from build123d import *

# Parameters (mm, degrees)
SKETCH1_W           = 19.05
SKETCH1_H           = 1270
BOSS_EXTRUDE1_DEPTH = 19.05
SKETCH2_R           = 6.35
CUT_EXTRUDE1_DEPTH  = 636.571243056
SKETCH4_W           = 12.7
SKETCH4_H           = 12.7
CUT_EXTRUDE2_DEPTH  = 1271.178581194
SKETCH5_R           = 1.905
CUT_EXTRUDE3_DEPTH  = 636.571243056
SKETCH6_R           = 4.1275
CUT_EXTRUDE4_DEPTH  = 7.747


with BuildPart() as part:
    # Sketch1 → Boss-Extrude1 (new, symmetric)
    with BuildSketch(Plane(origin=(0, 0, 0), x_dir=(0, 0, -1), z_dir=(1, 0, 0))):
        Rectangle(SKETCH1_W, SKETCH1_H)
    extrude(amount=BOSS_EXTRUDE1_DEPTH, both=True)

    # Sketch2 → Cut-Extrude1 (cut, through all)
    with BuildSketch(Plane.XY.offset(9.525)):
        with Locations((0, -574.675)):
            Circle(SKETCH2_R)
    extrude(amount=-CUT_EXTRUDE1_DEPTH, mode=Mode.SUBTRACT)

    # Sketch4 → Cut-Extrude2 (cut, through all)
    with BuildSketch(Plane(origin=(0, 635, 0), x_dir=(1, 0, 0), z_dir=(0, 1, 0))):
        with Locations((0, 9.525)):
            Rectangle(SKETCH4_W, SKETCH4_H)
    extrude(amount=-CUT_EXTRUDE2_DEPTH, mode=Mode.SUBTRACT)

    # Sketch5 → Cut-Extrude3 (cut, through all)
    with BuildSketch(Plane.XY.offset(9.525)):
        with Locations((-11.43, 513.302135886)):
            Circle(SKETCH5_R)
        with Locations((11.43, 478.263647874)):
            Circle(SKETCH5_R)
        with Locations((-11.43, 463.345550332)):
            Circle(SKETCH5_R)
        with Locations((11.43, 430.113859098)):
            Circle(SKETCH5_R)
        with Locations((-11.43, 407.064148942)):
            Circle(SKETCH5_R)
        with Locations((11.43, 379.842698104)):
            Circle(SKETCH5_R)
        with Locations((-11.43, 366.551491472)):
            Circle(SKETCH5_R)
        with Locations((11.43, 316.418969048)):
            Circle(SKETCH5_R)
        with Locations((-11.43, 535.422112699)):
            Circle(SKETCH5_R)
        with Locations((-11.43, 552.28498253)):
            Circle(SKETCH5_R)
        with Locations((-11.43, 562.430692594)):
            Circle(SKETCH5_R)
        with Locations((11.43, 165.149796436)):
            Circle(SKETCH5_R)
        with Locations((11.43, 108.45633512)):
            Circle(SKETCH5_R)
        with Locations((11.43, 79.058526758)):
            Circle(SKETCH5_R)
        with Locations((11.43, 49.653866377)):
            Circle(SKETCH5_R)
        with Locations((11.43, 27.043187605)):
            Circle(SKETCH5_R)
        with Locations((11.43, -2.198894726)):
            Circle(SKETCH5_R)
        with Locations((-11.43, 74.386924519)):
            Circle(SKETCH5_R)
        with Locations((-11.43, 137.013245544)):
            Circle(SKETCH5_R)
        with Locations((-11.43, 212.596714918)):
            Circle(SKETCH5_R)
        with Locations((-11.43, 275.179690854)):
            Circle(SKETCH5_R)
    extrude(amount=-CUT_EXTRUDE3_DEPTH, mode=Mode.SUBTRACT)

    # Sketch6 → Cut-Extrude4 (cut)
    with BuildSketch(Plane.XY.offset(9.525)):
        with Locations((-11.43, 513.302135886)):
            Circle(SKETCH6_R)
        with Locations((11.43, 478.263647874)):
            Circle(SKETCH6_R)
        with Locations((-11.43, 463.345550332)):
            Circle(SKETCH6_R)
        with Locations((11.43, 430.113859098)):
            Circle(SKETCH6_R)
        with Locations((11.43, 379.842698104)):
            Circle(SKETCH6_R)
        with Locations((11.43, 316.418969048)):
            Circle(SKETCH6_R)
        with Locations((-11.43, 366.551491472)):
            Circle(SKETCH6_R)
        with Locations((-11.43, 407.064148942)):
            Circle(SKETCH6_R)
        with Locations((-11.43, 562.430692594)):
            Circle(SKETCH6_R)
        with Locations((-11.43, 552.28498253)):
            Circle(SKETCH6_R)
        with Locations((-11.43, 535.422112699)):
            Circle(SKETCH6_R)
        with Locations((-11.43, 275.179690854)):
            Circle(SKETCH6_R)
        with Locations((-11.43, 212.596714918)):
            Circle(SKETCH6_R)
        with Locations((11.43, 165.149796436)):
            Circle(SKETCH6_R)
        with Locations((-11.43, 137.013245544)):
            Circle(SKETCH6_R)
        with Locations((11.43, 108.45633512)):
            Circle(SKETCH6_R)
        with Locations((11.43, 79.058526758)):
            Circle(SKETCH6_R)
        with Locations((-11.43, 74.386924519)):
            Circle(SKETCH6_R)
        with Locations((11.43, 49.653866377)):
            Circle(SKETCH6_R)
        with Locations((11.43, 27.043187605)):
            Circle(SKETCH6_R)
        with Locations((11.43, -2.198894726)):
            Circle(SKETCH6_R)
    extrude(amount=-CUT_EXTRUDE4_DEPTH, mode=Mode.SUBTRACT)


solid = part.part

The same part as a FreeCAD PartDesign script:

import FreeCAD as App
import Part
import Sketcher
Q = App.Units.Quantity

doc = App.newDocument("Part")
body = doc.addObject("PartDesign::Body", "Body")

# Sketch on YZ plane
sketch1 = body.newObject("Sketcher::SketchObject", "Sketch")
sketch1.AttachmentSupport = (doc.getObject("YZ_Plane"), [""])
sketch1.MapMode = "FlatFace"
sketch1.addGeometry([
    Part.LineSegment(App.Vector(635, 10, 0), App.Vector(-635, 10, 0)),
    Part.LineSegment(App.Vector(-635, 10, 0), App.Vector(-635, -10, 0)),
    Part.LineSegment(App.Vector(-635, -10, 0), App.Vector(635, -10, 0)),
    Part.LineSegment(App.Vector(635, -10, 0), App.Vector(635, 10, 0)),
], False)
sketch1.addConstraint([
    Sketcher.Constraint("Coincident", 0, 2, 1, 1),
    Sketcher.Constraint("Coincident", 1, 2, 2, 1),
    Sketcher.Constraint("Coincident", 2, 2, 3, 1),
    Sketcher.Constraint("Coincident", 3, 2, 0, 1),
    Sketcher.Constraint("Horizontal", 0),
    Sketcher.Constraint("Vertical", 1),
    Sketcher.Constraint("Horizontal", 2),
    Sketcher.Constraint("Vertical", 3),
    Sketcher.Constraint("Symmetric", 0, 2, 2, 2, -1, 1),
    Sketcher.Constraint("DistanceX", 0, 2, 0, 1, Q("50 in")),
    Sketcher.Constraint("DistanceY", 1, 2, 1, 1, Q("0.75 in")),
])
pad1 = body.newObject("PartDesign::Pad", "Pad")
pad1.Profile = sketch1
pad1.Length = Q("1.5 in")
pad1.Midplane = True

# Sketch on XY plane
sketch2 = body.newObject("Sketcher::SketchObject", "Sketch001")
sketch2.AttachmentSupport = (doc.getObject("XY_Plane"), [""])
sketch2.MapMode = "FlatFace"
sketch2.AttachmentOffset = App.Placement(App.Vector(0, 0, 0.375 * 25.4), App.Rotation())
sketch2.addGeometry(Part.Circle(App.Vector(0, -575, 0), App.Vector(0, 0, 1), 6), False)
sketch2.addConstraint([
    Sketcher.Constraint("PointOnObject", 0, 3, -2),
    Sketcher.Constraint("Diameter", 0, Q("0.5 in")),
    Sketcher.Constraint("DistanceY", 0, 3, -1, 1, Q("22.625 in")),
])
pocket1 = body.newObject("PartDesign::Pocket", "Pocket")
pocket1.Profile = sketch2
pocket1.Type = "ThroughAll"

# Sketch on XZ plane
sketch3 = body.newObject("Sketcher::SketchObject", "Sketch002")
sketch3.AttachmentSupport = (doc.getObject("XZ_Plane"), [""])
sketch3.MapMode = "FlatFace"
sketch3.AttachmentOffset = App.Placement(App.Vector(0, 0, -25 * 25.4), App.Rotation())
sketch3.addGeometry([
    Part.LineSegment(App.Vector(-6, -16, 0), App.Vector(-6, -3, 0)),
    Part.LineSegment(App.Vector(-6, -3, 0), App.Vector(6, -3, 0)),
    Part.LineSegment(App.Vector(6, -3, 0), App.Vector(6, -16, 0)),
    Part.LineSegment(App.Vector(6, -16, 0), App.Vector(-6, -16, 0)),
], False)
sketch3.addConstraint([
    Sketcher.Constraint("Coincident", 0, 2, 1, 1),
    Sketcher.Constraint("Coincident", 1, 2, 2, 1),
    Sketcher.Constraint("Coincident", 2, 2, 3, 1),
    Sketcher.Constraint("Coincident", 3, 2, 0, 1),
    Sketcher.Constraint("Vertical", 0),
    Sketcher.Constraint("Horizontal", 1),
    Sketcher.Constraint("Vertical", 2),
    Sketcher.Constraint("Horizontal", 3),
    Sketcher.Constraint("Equal", 3, 0),
    Sketcher.Constraint("DistanceX", 1, 1, 1, 2, Q("0.5 in")),
    Sketcher.Constraint("DistanceX", 0, 2, -1, 1, Q("0.25 in")),
    Sketcher.Constraint("DistanceY", 0, 2, -1, 1, Q("0.125 in")),
])
pocket2 = body.newObject("PartDesign::Pocket", "Pocket001")
pocket2.Profile = sketch3
pocket2.Type = "ThroughAll"
pocket2.Reversed = True

# Sketch on XY plane
sketch4 = body.newObject("Sketcher::SketchObject", "Sketch003")
sketch4.AttachmentSupport = (doc.getObject("XY_Plane"), [""])
sketch4.MapMode = "FlatFace"
sketch4.AttachmentOffset = App.Placement(App.Vector(0, 0, 0.375 * 25.4), App.Rotation())
sketch4.addGeometry([
    Part.Circle(App.Vector(-11.4, 513.3, 0), App.Vector(0, 0, 1), 1.9),  # 0
    Part.Circle(App.Vector(11.4, 478.3, 0), App.Vector(0, 0, 1), 1.9),  # 1
    Part.Circle(App.Vector(-11.4, 463.3, 0), App.Vector(0, 0, 1), 1.9),  # 2
    Part.Circle(App.Vector(11.4, 430.1, 0), App.Vector(0, 0, 1), 1.9),  # 3
    Part.Circle(App.Vector(-11.4, 407.1, 0), App.Vector(0, 0, 1), 1.9),  # 4
    Part.Circle(App.Vector(11.4, 379.8, 0), App.Vector(0, 0, 1), 1.9),  # 5
    Part.Circle(App.Vector(-11.4, 366.6, 0), App.Vector(0, 0, 1), 1.9),  # 6
    Part.Circle(App.Vector(11.4, 316.4, 0), App.Vector(0, 0, 1), 1.9),  # 7
    Part.Circle(App.Vector(-11.4, 535.4, 0), App.Vector(0, 0, 1), 1.9),  # 8
    Part.Circle(App.Vector(-11.4, 552.3, 0), App.Vector(0, 0, 1), 1.9),  # 9
    Part.Circle(App.Vector(-11.4, 562.4, 0), App.Vector(0, 0, 1), 1.9),  # 10
    Part.Circle(App.Vector(11.4, 165.1, 0), App.Vector(0, 0, 1), 1.9),  # 11
    Part.Circle(App.Vector(11.4, 108.5, 0), App.Vector(0, 0, 1), 1.9),  # 12
    Part.Circle(App.Vector(11.4, 79.1, 0), App.Vector(0, 0, 1), 1.9),  # 13
    Part.Circle(App.Vector(11.4, 49.7, 0), App.Vector(0, 0, 1), 1.9),  # 14
    Part.Circle(App.Vector(11.4, 27, 0), App.Vector(0, 0, 1), 1.9),  # 15
    Part.Circle(App.Vector(11.4, -2.2, 0), App.Vector(0, 0, 1), 1.9),  # 16
    Part.Circle(App.Vector(-11.4, 74.4, 0), App.Vector(0, 0, 1), 1.9),  # 17
    Part.Circle(App.Vector(-11.4, 137, 0), App.Vector(0, 0, 1), 1.9),  # 18
    Part.Circle(App.Vector(-11.4, 212.6, 0), App.Vector(0, 0, 1), 1.9),  # 19
    Part.Circle(App.Vector(-11.4, 275.2, 0), App.Vector(0, 0, 1), 1.9),  # 20
], False)
sketch4.addConstraint([
    Sketcher.Constraint("Equal", 0, 1),
    Sketcher.Constraint("Equal", 1, 2),
    Sketcher.Constraint("Equal", 2, 3),
    Sketcher.Constraint("Equal", 3, 4),
    Sketcher.Constraint("Equal", 4, 5),
    Sketcher.Constraint("Equal", 5, 6),
    Sketcher.Constraint("Equal", 6, 7),
    Sketcher.Constraint("Equal", 7, 8),
    Sketcher.Constraint("Equal", 8, 9),
    Sketcher.Constraint("Equal", 9, 10),
    Sketcher.Constraint("Equal", 10, 11),
    Sketcher.Constraint("Equal", 11, 12),
    Sketcher.Constraint("Equal", 12, 13),
    Sketcher.Constraint("Equal", 13, 14),
    Sketcher.Constraint("Equal", 14, 15),
    Sketcher.Constraint("Equal", 15, 16),
    Sketcher.Constraint("Equal", 16, 17),
    Sketcher.Constraint("Equal", 17, 18),
    Sketcher.Constraint("Equal", 18, 19),
    Sketcher.Constraint("Equal", 19, 20),
    Sketcher.Constraint("Vertical", 0, 3, 2, 3),
    Sketcher.Constraint("Vertical", 1, 3, 3, 3),
    Sketcher.Constraint("Vertical", 2, 3, 4, 3),
    Sketcher.Constraint("Vertical", 3, 3, 5, 3),
    Sketcher.Constraint("Vertical", 4, 3, 6, 3),
    Sketcher.Constraint("Vertical", 5, 3, 7, 3),
    Sketcher.Constraint("Vertical", 6, 3, 8, 3),
    Sketcher.Constraint("Vertical", 8, 3, 9, 3),
    Sketcher.Constraint("Vertical", 9, 3, 10, 3),
    Sketcher.Constraint("Vertical", 7, 3, 11, 3),
    Sketcher.Constraint("Vertical", 11, 3, 12, 3),
    Sketcher.Constraint("Vertical", 12, 3, 13, 3),
    Sketcher.Constraint("Vertical", 13, 3, 14, 3),
    Sketcher.Constraint("Vertical", 14, 3, 15, 3),
    Sketcher.Constraint("Vertical", 15, 3, 16, 3),
    Sketcher.Constraint("Vertical", 10, 3, 17, 3),
    Sketcher.Constraint("Vertical", 17, 3, 18, 3),
    Sketcher.Constraint("Vertical", 18, 3, 19, 3),
    Sketcher.Constraint("Vertical", 19, 3, 20, 3),
    Sketcher.Constraint("Diameter", 0, Q("0.15 in")),
    Sketcher.Constraint("DistanceX", 0, 3, 1, 3, Q("0.9 in")),
    Sketcher.Constraint("DistanceX", 0, 3, -1, 1, Q("0.45 in")),
    Sketcher.Constraint("DistanceY", -1, 1, 5, 3, Q("379.842698 mm")),
    Sketcher.Constraint("DistanceY", 4, 3, 2, 3, Q("56.281401 mm")),
    Sketcher.Constraint("DistanceY", 4, 3, 1, 3, Q("71.199499 mm")),
    Sketcher.Constraint("DistanceY", 11, 3, 5, 3, Q("214.692902 mm")),
    Sketcher.Constraint("DistanceY", 20, 3, 6, 3, Q("91.371801 mm")),
    Sketcher.Constraint("DistanceY", -1, 1, 2, 3, Q("463.34555 mm")),
    Sketcher.Constraint("DistanceY", -1, 1, 3, 3, Q("430.113859 mm")),
    Sketcher.Constraint("DistanceY", -1, 1, 6, 3, Q("366.551491 mm")),
    Sketcher.Constraint("DistanceY", -1, 1, 7, 3, Q("316.418969 mm")),
    Sketcher.Constraint("DistanceY", 1, 3, 0, 3, Q("35.038488 mm")),
    Sketcher.Constraint("DistanceY", 8, 3, 9, 3, Q("16.86287 mm")),
    Sketcher.Constraint("DistanceY", 9, 3, 10, 3, Q("10.14571 mm")),
    Sketcher.Constraint("DistanceY", 12, 3, 11, 3, Q("56.693461 mm")),
    Sketcher.Constraint("DistanceY", 13, 3, 12, 3, Q("29.397808 mm")),
    Sketcher.Constraint("DistanceY", 14, 3, 13, 3, Q("29.40466 mm")),
    Sketcher.Constraint("DistanceY", 15, 3, 14, 3, Q("22.610679 mm")),
    Sketcher.Constraint("DistanceY", 16, 3, 14, 3, Q("51.852761 mm")),
    Sketcher.Constraint("DistanceY", 14, 3, 17, 3, Q("24.733058 mm")),
    Sketcher.Constraint("DistanceY", 18, 3, 11, 3, Q("28.136551 mm")),
    Sketcher.Constraint("DistanceY", 11, 3, 19, 3, Q("47.446918 mm")),
    Sketcher.Constraint("DistanceY", -1, 1, 8, 3, Q("535.422113 mm")),
])
pocket3 = body.newObject("PartDesign::Pocket", "Pocket002")
pocket3.Profile = sketch4
pocket3.Type = "ThroughAll"

# Sketch on XY plane
sketch5 = body.newObject("Sketcher::SketchObject", "Sketch004")
sketch5.AttachmentSupport = (doc.getObject("XY_Plane"), [""])
sketch5.MapMode = "FlatFace"
sketch5.AttachmentOffset = App.Placement(App.Vector(0, 0, 0.375 * 25.4), App.Rotation())
sketch5.addGeometry([
    Part.Circle(App.Vector(-11.4, 513.3, 0), App.Vector(0, 0, 1), 4.1),  # 0
    Part.Circle(App.Vector(11.4, 478.3, 0), App.Vector(0, 0, 1), 4.1),  # 1
    Part.Circle(App.Vector(-11.4, 463.3, 0), App.Vector(0, 0, 1), 4.1),  # 2
    Part.Circle(App.Vector(11.4, 430.1, 0), App.Vector(0, 0, 1), 4.1),  # 3
    Part.Circle(App.Vector(11.4, 379.8, 0), App.Vector(0, 0, 1), 4.1),  # 4
    Part.Circle(App.Vector(11.4, 316.4, 0), App.Vector(0, 0, 1), 4.1),  # 5
    Part.Circle(App.Vector(-11.4, 366.6, 0), App.Vector(0, 0, 1), 4.1),  # 6
    Part.Circle(App.Vector(-11.4, 407.1, 0), App.Vector(0, 0, 1), 4.1),  # 7
    Part.Circle(App.Vector(-11.4, 562.4, 0), App.Vector(0, 0, 1), 4.1),  # 8
    Part.Circle(App.Vector(-11.4, 552.3, 0), App.Vector(0, 0, 1), 4.1),  # 9
    Part.Circle(App.Vector(-11.4, 535.4, 0), App.Vector(0, 0, 1), 4.1),  # 10
    Part.Circle(App.Vector(-11.4, 275.2, 0), App.Vector(0, 0, 1), 4.1),  # 11
    Part.Circle(App.Vector(-11.4, 212.6, 0), App.Vector(0, 0, 1), 4.1),  # 12
    Part.Circle(App.Vector(11.4, 165.1, 0), App.Vector(0, 0, 1), 4.1),  # 13
    Part.Circle(App.Vector(-11.4, 137, 0), App.Vector(0, 0, 1), 4.1),  # 14
    Part.Circle(App.Vector(11.4, 108.5, 0), App.Vector(0, 0, 1), 4.1),  # 15
    Part.Circle(App.Vector(11.4, 79.1, 0), App.Vector(0, 0, 1), 4.1),  # 16
    Part.Circle(App.Vector(-11.4, 74.4, 0), App.Vector(0, 0, 1), 4.1),  # 17
    Part.Circle(App.Vector(11.4, 49.7, 0), App.Vector(0, 0, 1), 4.1),  # 18
    Part.Circle(App.Vector(11.4, 27, 0), App.Vector(0, 0, 1), 4.1),  # 19
    Part.Circle(App.Vector(11.4, -2.2, 0), App.Vector(0, 0, 1), 4.1),  # 20
], False)
sketch5.addConstraint([
    Sketcher.Constraint("Equal", 0, 1),
    Sketcher.Constraint("Equal", 1, 2),
    Sketcher.Constraint("Equal", 2, 3),
    Sketcher.Constraint("Equal", 3, 4),
    Sketcher.Constraint("Equal", 4, 5),
    Sketcher.Constraint("Equal", 5, 6),
    Sketcher.Constraint("Equal", 6, 7),
    Sketcher.Constraint("Equal", 7, 8),
    Sketcher.Constraint("Equal", 8, 9),
    Sketcher.Constraint("Equal", 9, 10),
    Sketcher.Constraint("Equal", 10, 11),
    Sketcher.Constraint("Equal", 11, 12),
    Sketcher.Constraint("Equal", 12, 13),
    Sketcher.Constraint("Equal", 13, 14),
    Sketcher.Constraint("Equal", 14, 15),
    Sketcher.Constraint("Equal", 15, 16),
    Sketcher.Constraint("Equal", 16, 17),
    Sketcher.Constraint("Equal", 17, 18),
    Sketcher.Constraint("Equal", 18, 19),
    Sketcher.Constraint("Equal", 19, 20),
    Sketcher.Constraint("Vertical", 0, 3, 2, 3),
    Sketcher.Constraint("Vertical", 1, 3, 3, 3),
    Sketcher.Constraint("Vertical", 3, 3, 4, 3),
    Sketcher.Constraint("Vertical", 4, 3, 5, 3),
    Sketcher.Constraint("Vertical", 2, 3, 6, 3),
    Sketcher.Constraint("Vertical", 6, 3, 7, 3),
    Sketcher.Constraint("Vertical", 7, 3, 8, 3),
    Sketcher.Constraint("Vertical", 8, 3, 9, 3),
    Sketcher.Constraint("Vertical", 9, 3, 10, 3),
    Sketcher.Constraint("Vertical", 10, 3, 11, 3),
    Sketcher.Constraint("Vertical", 11, 3, 12, 3),
    Sketcher.Constraint("Vertical", 5, 3, 13, 3),
    Sketcher.Constraint("Vertical", 12, 3, 14, 3),
    Sketcher.Constraint("Vertical", 13, 3, 15, 3),
    Sketcher.Constraint("Vertical", 15, 3, 16, 3),
    Sketcher.Constraint("Vertical", 14, 3, 17, 3),
    Sketcher.Constraint("Vertical", 16, 3, 18, 3),
    Sketcher.Constraint("Vertical", 18, 3, 19, 3),
    Sketcher.Constraint("Vertical", 19, 3, 20, 3),
    Sketcher.Constraint("Diameter", 0, Q("0.325 in")),
    Sketcher.Constraint("DistanceX", 0, 3, 1, 3, Q("0.9 in")),
    Sketcher.Constraint("DistanceX", 0, 3, -1, 1, Q("0.45 in")),
    Sketcher.Constraint("DistanceY", -1, 1, 4, 3, Q("379.842698 mm")),
    Sketcher.Constraint("DistanceY", 7, 3, 2, 3, Q("56.281401 mm")),
    Sketcher.Constraint("DistanceY", 7, 3, 1, 3, Q("71.199499 mm")),
    Sketcher.Constraint("DistanceY", 11, 3, 6, 3, Q("91.371801 mm")),
    Sketcher.Constraint("DistanceY", 13, 3, 4, 3, Q("214.692902 mm")),
    Sketcher.Constraint("DistanceY", -1, 1, 2, 3, Q("463.34555 mm")),
    Sketcher.Constraint("DistanceY", -1, 1, 3, 3, Q("430.113859 mm")),
    Sketcher.Constraint("DistanceY", -1, 1, 5, 3, Q("316.418969 mm")),
    Sketcher.Constraint("DistanceY", -1, 1, 6, 3, Q("366.551491 mm")),
    Sketcher.Constraint("DistanceY", 1, 3, 0, 3, Q("35.038488 mm")),
    Sketcher.Constraint("DistanceY", 9, 3, 8, 3, Q("10.14571 mm")),
    Sketcher.Constraint("DistanceY", 10, 3, 9, 3, Q("16.86287 mm")),
    Sketcher.Constraint("DistanceY", 13, 3, 12, 3, Q("47.446918 mm")),
    Sketcher.Constraint("DistanceY", 14, 3, 13, 3, Q("28.136551 mm")),
    Sketcher.Constraint("DistanceY", 15, 3, 14, 3, Q("28.55691 mm")),
    Sketcher.Constraint("DistanceY", 16, 3, 15, 3, Q("29.397808 mm")),
    Sketcher.Constraint("DistanceY", 17, 3, 15, 3, Q("34.069411 mm")),
    Sketcher.Constraint("DistanceY", 18, 3, 16, 3, Q("29.40466 mm")),
    Sketcher.Constraint("DistanceY", 19, 3, 18, 3, Q("22.610679 mm")),
    Sketcher.Constraint("DistanceY", 20, 3, 18, 3, Q("51.852761 mm")),
    Sketcher.Constraint("DistanceY", -1, 1, 8, 3, Q("562.430693 mm")),
])
pocket4 = body.newObject("PartDesign::Pocket", "Pocket003")
pocket4.Profile = sketch5
pocket4.Length = Q("0.305 in")

doc.recompute()
